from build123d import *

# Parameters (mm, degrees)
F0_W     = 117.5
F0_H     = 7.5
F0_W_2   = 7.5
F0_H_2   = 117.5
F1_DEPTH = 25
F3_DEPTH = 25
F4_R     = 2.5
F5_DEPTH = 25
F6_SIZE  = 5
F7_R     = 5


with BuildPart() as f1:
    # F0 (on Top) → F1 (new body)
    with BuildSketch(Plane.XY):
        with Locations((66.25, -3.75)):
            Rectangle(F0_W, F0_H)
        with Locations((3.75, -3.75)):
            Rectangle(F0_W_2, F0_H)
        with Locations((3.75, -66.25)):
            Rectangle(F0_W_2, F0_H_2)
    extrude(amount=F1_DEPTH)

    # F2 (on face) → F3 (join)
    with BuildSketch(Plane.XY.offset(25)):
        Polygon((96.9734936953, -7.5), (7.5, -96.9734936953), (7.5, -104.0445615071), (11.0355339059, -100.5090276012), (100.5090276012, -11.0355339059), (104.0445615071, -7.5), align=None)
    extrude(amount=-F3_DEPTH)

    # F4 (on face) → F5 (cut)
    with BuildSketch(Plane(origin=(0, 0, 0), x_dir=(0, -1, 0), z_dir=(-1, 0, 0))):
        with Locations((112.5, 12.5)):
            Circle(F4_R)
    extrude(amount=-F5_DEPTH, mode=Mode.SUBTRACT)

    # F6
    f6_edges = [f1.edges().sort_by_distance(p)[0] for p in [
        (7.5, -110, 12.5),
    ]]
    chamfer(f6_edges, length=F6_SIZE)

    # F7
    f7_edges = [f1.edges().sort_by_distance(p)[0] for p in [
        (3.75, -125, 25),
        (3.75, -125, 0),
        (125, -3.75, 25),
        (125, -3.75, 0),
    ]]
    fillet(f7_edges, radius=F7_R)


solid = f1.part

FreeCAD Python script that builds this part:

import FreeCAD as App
import Part
import Sketcher

V = App.Vector
Q = App.Units.Quantity


def edges_at(feature, points):
    """Names of the edges that pass closest to the given points."""
    edges = feature.Shape.Edges
    near = lambda p: min(range(len(edges)), key=lambda i: edges[i].distToShape(Part.Vertex(*p))[0])
    return sorted({f"Edge{near(p) + 1}" for p in points})


def add_polygon(sketch, points):
    """Adds a closed chain of lines whose ends are joined by coincident constraints."""
    first, n = sketch.GeometryCount, len(points)
    for a, b in zip(points, points[1:] + points[:1]):
        sketch.addGeometry(Part.LineSegment(App.Vector(*a, 0), App.Vector(*b, 0)), False)
    for i in range(n):
        sketch.addConstraint(Sketcher.Constraint("Coincident", first + i, 2, first + (i + 1) % n, 1))

doc = App.newDocument("Part")
body = doc.addObject("PartDesign::Body", "Body")

sketch1 = body.newObject("Sketcher::SketchObject", "Sketch")
sketch1.AttachmentSupport = (doc.getObject("XY_Plane"), [""])
sketch1.MapMode = "FlatFace"
add_polygon(sketch1, [(125, -8), (125, 0), (0, 0), (0, -125), (8, -125), (8, -8)])
sketch1.addConstraint([
    Sketcher.Constraint("Vertical", 0),
    Sketcher.Constraint("Horizontal", 1),
    Sketcher.Constraint("Vertical", 2),
    Sketcher.Constraint("Horizontal", 3),
    Sketcher.Constraint("Vertical", 4),
    Sketcher.Constraint("Horizontal", 5),
    Sketcher.Constraint("Coincident", 1, 2, -1, 1),
    Sketcher.Constraint("Equal", 3, 0),
    Sketcher.Constraint("Equal", 1, 2),
    Sketcher.Constraint("DistanceX", 1, 2, 1, 1, Q("125 mm")),
    Sketcher.Constraint("DistanceX", 3, 1, 3, 2, Q("7.5 mm")),
])
pad1 = body.newObject("PartDesign::Pad", "Pad")
pad1.Profile = sketch1
pad1.Length = 25

sketch2 = body.newObject("Sketcher::SketchObject", "Sketch001")
sketch2.AttachmentSupport = (doc.getObject("XY_Plane"), [""])
sketch2.MapMode = "FlatFace"
sketch2.AttachmentOffset = App.Placement(V(0, 0, 25), App.Rotation())
add_polygon(sketch2, [(97, -8), (8, -97), (8, -104), (104, -8)])
sketch2.addConstraint([
    Sketcher.Constraint("Vertical", 1),
    Sketcher.Constraint("Horizontal", 3),
    Sketcher.Constraint("Parallel", 0, 2),
    Sketcher.Constraint("Equal", 3, 1),
    Sketcher.Constraint("DistanceX", -1, 1, 0, 2, Q("7.5 mm")),
    Sketcher.Constraint("DistanceY", 2, 2, -1, 1, Q("7.5 mm")),
    Sketcher.Constraint("Distance", 0, Q("126.534628 mm")),
    Sketcher.Constraint("Distance", 2, Q("136.534628 mm")),
])
pad2 = body.newObject("PartDesign::Pad", "Pad001")
pad2.Profile = sketch2
pad2.Length = 25
pad2.Reversed = True

sketch3 = body.newObject("Sketcher::SketchObject", "Sketch002")
sketch3.AttachmentSupport = (doc.getObject("YZ_Plane"), [""])
sketch3.MapMode = "FlatFace"
sketch3.addGeometry(Part.Circle(V(-112.5, 12.5, 0), V(0, 0, 1), 2.5), False)
sketch3.addConstraint([
    Sketcher.Constraint("Diameter", 0, Q("5 mm")),
    Sketcher.Constraint("DistanceX", 0, 3, -1, 1, Q("112.5 mm")),
    Sketcher.Constraint("DistanceY", -1, 1, 0, 3, Q("12.5 mm")),
])
pocket1 = body.newObject("PartDesign::Pocket", "Pocket")
pocket1.Profile = sketch3
pocket1.Length = 25
pocket1.Reversed = True
doc.recompute()

chamfer = body.newObject("PartDesign::Chamfer", "Chamfer")
chamfer.Base = (pocket1, edges_at(pocket1, [(7.5, -110, 12.5)]))
chamfer.Size = 5
doc.recompute()

fillet = body.newObject("PartDesign::Fillet", "Fillet")
fillet.Base = (chamfer, edges_at(chamfer, [
    (3.75, -125, 25),
    (3.75, -125, 0),
    (125, -3.75, 25),
    (125, -3.75, 0),
]))
fillet.Radius = 5

doc.recompute()
